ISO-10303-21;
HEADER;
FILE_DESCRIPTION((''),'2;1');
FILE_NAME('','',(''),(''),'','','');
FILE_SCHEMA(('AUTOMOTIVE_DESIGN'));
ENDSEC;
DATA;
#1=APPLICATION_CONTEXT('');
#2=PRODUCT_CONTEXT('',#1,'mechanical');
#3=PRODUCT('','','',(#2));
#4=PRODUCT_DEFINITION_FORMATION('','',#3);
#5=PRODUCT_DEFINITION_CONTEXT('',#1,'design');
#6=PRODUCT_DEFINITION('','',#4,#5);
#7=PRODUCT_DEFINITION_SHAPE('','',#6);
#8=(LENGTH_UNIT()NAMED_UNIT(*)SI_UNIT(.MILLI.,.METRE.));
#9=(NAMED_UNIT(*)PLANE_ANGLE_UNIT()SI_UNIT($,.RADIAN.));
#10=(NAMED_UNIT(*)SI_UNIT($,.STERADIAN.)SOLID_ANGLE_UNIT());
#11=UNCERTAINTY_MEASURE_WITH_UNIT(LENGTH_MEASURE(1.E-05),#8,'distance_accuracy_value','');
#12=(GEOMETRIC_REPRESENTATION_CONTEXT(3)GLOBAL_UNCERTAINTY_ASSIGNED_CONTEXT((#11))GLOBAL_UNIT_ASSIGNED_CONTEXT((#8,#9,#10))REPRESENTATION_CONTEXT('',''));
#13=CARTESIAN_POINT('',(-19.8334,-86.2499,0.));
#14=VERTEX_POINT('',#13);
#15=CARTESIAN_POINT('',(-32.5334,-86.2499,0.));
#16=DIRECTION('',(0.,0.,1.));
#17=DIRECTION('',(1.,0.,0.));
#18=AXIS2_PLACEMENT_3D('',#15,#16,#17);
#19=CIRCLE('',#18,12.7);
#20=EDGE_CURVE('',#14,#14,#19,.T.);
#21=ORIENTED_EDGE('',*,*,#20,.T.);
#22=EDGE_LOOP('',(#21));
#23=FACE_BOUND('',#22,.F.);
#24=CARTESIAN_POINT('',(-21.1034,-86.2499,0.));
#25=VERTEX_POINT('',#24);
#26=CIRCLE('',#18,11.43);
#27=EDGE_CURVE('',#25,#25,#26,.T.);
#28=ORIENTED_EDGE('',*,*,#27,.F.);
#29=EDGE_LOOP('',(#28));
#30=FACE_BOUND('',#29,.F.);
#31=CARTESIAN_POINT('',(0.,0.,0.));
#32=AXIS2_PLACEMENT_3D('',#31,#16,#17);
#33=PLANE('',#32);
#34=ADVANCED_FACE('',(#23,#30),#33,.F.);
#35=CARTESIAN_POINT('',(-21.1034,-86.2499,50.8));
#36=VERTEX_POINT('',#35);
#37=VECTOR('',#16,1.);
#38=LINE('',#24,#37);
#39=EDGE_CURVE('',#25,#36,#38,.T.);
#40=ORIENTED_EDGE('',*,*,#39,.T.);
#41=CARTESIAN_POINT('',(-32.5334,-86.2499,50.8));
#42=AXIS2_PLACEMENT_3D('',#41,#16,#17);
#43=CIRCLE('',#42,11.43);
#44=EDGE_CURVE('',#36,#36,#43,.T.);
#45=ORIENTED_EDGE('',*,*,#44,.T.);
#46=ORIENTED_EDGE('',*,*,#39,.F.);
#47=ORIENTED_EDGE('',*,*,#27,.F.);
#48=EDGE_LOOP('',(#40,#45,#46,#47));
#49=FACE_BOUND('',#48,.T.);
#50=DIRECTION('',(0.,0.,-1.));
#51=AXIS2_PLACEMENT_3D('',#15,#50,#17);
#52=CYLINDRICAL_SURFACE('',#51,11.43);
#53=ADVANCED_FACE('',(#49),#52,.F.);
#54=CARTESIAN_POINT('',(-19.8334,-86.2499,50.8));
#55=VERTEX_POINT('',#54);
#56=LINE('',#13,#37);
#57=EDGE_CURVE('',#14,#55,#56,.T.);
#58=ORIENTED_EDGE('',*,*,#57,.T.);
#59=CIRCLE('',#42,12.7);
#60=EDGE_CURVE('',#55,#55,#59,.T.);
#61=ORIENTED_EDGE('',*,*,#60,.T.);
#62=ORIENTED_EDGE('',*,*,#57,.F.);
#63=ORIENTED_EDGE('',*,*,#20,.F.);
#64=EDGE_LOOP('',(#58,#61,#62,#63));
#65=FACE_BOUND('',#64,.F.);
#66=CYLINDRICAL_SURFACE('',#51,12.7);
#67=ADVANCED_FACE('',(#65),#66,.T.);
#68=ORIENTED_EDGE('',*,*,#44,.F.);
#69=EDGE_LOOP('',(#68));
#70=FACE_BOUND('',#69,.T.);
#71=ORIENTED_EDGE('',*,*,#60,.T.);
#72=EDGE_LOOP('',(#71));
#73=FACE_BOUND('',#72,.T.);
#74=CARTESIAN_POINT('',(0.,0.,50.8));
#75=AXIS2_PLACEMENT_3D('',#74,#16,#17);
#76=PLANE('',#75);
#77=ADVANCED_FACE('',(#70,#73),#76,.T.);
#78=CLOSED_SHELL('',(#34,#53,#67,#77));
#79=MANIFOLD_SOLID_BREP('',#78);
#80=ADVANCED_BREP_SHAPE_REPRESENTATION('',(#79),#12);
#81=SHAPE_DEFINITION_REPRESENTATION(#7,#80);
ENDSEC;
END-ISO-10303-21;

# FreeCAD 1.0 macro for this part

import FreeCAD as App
import Part
import Sketcher
Q = App.Units.Quantity

doc = App.newDocument("Part")
params = doc.addObject("Spreadsheet::Sheet", "Params")
for row, (alias, value) in enumerate([
    ("sketch1_diameter", "1 in"),
    ("sketch1_diameter2", "0.9 in"),
    ("pad1_length", "2 in"),
], start=1):
    params.set(f"A{row}", alias)
    params.set(f"B{row}", "=" + value)
    params.setAlias(f"B{row}", alias)

body = doc.addObject("PartDesign::Body", "Body")

# Sketch on XY plane
sketch1 = body.newObject("Sketcher::SketchObject", "Sketch")
sketch1.AttachmentSupport = (doc.getObject("XY_Plane"), [""])
sketch1.MapMode = "FlatFace"
sketch1.addGeometry([
    Part.Circle(App.Vector(-33, -86, 0), App.Vector(0, 0, 1), 13),
    Part.Circle(App.Vector(-33, -86, 0), App.Vector(0, 0, 1), 11),
], False)
sketch1.addConstraint([
    Sketcher.Constraint("Coincident", 1, 3, 0, 3),
    Sketcher.Constraint("Diameter", 0, Q("1 in")),
    Sketcher.Constraint("Diameter", 1, Q("0.9 in")),
    Sketcher.Constraint("DistanceX", 0, 3, -1, 1, 32.5334),
    Sketcher.Constraint("DistanceY", 0, 3, -1, 1, 86.25),
])
sketch1.setExpression("Constraints[1]", "Params.sketch1_diameter")
sketch1.setExpression("Constraints[2]", "Params.sketch1_diameter2")
pad1 = body.newObject("PartDesign::Pad", "Pad")
pad1.Profile = sketch1
pad1.setExpression("Length", "Params.pad1_length")

doc.recompute()
